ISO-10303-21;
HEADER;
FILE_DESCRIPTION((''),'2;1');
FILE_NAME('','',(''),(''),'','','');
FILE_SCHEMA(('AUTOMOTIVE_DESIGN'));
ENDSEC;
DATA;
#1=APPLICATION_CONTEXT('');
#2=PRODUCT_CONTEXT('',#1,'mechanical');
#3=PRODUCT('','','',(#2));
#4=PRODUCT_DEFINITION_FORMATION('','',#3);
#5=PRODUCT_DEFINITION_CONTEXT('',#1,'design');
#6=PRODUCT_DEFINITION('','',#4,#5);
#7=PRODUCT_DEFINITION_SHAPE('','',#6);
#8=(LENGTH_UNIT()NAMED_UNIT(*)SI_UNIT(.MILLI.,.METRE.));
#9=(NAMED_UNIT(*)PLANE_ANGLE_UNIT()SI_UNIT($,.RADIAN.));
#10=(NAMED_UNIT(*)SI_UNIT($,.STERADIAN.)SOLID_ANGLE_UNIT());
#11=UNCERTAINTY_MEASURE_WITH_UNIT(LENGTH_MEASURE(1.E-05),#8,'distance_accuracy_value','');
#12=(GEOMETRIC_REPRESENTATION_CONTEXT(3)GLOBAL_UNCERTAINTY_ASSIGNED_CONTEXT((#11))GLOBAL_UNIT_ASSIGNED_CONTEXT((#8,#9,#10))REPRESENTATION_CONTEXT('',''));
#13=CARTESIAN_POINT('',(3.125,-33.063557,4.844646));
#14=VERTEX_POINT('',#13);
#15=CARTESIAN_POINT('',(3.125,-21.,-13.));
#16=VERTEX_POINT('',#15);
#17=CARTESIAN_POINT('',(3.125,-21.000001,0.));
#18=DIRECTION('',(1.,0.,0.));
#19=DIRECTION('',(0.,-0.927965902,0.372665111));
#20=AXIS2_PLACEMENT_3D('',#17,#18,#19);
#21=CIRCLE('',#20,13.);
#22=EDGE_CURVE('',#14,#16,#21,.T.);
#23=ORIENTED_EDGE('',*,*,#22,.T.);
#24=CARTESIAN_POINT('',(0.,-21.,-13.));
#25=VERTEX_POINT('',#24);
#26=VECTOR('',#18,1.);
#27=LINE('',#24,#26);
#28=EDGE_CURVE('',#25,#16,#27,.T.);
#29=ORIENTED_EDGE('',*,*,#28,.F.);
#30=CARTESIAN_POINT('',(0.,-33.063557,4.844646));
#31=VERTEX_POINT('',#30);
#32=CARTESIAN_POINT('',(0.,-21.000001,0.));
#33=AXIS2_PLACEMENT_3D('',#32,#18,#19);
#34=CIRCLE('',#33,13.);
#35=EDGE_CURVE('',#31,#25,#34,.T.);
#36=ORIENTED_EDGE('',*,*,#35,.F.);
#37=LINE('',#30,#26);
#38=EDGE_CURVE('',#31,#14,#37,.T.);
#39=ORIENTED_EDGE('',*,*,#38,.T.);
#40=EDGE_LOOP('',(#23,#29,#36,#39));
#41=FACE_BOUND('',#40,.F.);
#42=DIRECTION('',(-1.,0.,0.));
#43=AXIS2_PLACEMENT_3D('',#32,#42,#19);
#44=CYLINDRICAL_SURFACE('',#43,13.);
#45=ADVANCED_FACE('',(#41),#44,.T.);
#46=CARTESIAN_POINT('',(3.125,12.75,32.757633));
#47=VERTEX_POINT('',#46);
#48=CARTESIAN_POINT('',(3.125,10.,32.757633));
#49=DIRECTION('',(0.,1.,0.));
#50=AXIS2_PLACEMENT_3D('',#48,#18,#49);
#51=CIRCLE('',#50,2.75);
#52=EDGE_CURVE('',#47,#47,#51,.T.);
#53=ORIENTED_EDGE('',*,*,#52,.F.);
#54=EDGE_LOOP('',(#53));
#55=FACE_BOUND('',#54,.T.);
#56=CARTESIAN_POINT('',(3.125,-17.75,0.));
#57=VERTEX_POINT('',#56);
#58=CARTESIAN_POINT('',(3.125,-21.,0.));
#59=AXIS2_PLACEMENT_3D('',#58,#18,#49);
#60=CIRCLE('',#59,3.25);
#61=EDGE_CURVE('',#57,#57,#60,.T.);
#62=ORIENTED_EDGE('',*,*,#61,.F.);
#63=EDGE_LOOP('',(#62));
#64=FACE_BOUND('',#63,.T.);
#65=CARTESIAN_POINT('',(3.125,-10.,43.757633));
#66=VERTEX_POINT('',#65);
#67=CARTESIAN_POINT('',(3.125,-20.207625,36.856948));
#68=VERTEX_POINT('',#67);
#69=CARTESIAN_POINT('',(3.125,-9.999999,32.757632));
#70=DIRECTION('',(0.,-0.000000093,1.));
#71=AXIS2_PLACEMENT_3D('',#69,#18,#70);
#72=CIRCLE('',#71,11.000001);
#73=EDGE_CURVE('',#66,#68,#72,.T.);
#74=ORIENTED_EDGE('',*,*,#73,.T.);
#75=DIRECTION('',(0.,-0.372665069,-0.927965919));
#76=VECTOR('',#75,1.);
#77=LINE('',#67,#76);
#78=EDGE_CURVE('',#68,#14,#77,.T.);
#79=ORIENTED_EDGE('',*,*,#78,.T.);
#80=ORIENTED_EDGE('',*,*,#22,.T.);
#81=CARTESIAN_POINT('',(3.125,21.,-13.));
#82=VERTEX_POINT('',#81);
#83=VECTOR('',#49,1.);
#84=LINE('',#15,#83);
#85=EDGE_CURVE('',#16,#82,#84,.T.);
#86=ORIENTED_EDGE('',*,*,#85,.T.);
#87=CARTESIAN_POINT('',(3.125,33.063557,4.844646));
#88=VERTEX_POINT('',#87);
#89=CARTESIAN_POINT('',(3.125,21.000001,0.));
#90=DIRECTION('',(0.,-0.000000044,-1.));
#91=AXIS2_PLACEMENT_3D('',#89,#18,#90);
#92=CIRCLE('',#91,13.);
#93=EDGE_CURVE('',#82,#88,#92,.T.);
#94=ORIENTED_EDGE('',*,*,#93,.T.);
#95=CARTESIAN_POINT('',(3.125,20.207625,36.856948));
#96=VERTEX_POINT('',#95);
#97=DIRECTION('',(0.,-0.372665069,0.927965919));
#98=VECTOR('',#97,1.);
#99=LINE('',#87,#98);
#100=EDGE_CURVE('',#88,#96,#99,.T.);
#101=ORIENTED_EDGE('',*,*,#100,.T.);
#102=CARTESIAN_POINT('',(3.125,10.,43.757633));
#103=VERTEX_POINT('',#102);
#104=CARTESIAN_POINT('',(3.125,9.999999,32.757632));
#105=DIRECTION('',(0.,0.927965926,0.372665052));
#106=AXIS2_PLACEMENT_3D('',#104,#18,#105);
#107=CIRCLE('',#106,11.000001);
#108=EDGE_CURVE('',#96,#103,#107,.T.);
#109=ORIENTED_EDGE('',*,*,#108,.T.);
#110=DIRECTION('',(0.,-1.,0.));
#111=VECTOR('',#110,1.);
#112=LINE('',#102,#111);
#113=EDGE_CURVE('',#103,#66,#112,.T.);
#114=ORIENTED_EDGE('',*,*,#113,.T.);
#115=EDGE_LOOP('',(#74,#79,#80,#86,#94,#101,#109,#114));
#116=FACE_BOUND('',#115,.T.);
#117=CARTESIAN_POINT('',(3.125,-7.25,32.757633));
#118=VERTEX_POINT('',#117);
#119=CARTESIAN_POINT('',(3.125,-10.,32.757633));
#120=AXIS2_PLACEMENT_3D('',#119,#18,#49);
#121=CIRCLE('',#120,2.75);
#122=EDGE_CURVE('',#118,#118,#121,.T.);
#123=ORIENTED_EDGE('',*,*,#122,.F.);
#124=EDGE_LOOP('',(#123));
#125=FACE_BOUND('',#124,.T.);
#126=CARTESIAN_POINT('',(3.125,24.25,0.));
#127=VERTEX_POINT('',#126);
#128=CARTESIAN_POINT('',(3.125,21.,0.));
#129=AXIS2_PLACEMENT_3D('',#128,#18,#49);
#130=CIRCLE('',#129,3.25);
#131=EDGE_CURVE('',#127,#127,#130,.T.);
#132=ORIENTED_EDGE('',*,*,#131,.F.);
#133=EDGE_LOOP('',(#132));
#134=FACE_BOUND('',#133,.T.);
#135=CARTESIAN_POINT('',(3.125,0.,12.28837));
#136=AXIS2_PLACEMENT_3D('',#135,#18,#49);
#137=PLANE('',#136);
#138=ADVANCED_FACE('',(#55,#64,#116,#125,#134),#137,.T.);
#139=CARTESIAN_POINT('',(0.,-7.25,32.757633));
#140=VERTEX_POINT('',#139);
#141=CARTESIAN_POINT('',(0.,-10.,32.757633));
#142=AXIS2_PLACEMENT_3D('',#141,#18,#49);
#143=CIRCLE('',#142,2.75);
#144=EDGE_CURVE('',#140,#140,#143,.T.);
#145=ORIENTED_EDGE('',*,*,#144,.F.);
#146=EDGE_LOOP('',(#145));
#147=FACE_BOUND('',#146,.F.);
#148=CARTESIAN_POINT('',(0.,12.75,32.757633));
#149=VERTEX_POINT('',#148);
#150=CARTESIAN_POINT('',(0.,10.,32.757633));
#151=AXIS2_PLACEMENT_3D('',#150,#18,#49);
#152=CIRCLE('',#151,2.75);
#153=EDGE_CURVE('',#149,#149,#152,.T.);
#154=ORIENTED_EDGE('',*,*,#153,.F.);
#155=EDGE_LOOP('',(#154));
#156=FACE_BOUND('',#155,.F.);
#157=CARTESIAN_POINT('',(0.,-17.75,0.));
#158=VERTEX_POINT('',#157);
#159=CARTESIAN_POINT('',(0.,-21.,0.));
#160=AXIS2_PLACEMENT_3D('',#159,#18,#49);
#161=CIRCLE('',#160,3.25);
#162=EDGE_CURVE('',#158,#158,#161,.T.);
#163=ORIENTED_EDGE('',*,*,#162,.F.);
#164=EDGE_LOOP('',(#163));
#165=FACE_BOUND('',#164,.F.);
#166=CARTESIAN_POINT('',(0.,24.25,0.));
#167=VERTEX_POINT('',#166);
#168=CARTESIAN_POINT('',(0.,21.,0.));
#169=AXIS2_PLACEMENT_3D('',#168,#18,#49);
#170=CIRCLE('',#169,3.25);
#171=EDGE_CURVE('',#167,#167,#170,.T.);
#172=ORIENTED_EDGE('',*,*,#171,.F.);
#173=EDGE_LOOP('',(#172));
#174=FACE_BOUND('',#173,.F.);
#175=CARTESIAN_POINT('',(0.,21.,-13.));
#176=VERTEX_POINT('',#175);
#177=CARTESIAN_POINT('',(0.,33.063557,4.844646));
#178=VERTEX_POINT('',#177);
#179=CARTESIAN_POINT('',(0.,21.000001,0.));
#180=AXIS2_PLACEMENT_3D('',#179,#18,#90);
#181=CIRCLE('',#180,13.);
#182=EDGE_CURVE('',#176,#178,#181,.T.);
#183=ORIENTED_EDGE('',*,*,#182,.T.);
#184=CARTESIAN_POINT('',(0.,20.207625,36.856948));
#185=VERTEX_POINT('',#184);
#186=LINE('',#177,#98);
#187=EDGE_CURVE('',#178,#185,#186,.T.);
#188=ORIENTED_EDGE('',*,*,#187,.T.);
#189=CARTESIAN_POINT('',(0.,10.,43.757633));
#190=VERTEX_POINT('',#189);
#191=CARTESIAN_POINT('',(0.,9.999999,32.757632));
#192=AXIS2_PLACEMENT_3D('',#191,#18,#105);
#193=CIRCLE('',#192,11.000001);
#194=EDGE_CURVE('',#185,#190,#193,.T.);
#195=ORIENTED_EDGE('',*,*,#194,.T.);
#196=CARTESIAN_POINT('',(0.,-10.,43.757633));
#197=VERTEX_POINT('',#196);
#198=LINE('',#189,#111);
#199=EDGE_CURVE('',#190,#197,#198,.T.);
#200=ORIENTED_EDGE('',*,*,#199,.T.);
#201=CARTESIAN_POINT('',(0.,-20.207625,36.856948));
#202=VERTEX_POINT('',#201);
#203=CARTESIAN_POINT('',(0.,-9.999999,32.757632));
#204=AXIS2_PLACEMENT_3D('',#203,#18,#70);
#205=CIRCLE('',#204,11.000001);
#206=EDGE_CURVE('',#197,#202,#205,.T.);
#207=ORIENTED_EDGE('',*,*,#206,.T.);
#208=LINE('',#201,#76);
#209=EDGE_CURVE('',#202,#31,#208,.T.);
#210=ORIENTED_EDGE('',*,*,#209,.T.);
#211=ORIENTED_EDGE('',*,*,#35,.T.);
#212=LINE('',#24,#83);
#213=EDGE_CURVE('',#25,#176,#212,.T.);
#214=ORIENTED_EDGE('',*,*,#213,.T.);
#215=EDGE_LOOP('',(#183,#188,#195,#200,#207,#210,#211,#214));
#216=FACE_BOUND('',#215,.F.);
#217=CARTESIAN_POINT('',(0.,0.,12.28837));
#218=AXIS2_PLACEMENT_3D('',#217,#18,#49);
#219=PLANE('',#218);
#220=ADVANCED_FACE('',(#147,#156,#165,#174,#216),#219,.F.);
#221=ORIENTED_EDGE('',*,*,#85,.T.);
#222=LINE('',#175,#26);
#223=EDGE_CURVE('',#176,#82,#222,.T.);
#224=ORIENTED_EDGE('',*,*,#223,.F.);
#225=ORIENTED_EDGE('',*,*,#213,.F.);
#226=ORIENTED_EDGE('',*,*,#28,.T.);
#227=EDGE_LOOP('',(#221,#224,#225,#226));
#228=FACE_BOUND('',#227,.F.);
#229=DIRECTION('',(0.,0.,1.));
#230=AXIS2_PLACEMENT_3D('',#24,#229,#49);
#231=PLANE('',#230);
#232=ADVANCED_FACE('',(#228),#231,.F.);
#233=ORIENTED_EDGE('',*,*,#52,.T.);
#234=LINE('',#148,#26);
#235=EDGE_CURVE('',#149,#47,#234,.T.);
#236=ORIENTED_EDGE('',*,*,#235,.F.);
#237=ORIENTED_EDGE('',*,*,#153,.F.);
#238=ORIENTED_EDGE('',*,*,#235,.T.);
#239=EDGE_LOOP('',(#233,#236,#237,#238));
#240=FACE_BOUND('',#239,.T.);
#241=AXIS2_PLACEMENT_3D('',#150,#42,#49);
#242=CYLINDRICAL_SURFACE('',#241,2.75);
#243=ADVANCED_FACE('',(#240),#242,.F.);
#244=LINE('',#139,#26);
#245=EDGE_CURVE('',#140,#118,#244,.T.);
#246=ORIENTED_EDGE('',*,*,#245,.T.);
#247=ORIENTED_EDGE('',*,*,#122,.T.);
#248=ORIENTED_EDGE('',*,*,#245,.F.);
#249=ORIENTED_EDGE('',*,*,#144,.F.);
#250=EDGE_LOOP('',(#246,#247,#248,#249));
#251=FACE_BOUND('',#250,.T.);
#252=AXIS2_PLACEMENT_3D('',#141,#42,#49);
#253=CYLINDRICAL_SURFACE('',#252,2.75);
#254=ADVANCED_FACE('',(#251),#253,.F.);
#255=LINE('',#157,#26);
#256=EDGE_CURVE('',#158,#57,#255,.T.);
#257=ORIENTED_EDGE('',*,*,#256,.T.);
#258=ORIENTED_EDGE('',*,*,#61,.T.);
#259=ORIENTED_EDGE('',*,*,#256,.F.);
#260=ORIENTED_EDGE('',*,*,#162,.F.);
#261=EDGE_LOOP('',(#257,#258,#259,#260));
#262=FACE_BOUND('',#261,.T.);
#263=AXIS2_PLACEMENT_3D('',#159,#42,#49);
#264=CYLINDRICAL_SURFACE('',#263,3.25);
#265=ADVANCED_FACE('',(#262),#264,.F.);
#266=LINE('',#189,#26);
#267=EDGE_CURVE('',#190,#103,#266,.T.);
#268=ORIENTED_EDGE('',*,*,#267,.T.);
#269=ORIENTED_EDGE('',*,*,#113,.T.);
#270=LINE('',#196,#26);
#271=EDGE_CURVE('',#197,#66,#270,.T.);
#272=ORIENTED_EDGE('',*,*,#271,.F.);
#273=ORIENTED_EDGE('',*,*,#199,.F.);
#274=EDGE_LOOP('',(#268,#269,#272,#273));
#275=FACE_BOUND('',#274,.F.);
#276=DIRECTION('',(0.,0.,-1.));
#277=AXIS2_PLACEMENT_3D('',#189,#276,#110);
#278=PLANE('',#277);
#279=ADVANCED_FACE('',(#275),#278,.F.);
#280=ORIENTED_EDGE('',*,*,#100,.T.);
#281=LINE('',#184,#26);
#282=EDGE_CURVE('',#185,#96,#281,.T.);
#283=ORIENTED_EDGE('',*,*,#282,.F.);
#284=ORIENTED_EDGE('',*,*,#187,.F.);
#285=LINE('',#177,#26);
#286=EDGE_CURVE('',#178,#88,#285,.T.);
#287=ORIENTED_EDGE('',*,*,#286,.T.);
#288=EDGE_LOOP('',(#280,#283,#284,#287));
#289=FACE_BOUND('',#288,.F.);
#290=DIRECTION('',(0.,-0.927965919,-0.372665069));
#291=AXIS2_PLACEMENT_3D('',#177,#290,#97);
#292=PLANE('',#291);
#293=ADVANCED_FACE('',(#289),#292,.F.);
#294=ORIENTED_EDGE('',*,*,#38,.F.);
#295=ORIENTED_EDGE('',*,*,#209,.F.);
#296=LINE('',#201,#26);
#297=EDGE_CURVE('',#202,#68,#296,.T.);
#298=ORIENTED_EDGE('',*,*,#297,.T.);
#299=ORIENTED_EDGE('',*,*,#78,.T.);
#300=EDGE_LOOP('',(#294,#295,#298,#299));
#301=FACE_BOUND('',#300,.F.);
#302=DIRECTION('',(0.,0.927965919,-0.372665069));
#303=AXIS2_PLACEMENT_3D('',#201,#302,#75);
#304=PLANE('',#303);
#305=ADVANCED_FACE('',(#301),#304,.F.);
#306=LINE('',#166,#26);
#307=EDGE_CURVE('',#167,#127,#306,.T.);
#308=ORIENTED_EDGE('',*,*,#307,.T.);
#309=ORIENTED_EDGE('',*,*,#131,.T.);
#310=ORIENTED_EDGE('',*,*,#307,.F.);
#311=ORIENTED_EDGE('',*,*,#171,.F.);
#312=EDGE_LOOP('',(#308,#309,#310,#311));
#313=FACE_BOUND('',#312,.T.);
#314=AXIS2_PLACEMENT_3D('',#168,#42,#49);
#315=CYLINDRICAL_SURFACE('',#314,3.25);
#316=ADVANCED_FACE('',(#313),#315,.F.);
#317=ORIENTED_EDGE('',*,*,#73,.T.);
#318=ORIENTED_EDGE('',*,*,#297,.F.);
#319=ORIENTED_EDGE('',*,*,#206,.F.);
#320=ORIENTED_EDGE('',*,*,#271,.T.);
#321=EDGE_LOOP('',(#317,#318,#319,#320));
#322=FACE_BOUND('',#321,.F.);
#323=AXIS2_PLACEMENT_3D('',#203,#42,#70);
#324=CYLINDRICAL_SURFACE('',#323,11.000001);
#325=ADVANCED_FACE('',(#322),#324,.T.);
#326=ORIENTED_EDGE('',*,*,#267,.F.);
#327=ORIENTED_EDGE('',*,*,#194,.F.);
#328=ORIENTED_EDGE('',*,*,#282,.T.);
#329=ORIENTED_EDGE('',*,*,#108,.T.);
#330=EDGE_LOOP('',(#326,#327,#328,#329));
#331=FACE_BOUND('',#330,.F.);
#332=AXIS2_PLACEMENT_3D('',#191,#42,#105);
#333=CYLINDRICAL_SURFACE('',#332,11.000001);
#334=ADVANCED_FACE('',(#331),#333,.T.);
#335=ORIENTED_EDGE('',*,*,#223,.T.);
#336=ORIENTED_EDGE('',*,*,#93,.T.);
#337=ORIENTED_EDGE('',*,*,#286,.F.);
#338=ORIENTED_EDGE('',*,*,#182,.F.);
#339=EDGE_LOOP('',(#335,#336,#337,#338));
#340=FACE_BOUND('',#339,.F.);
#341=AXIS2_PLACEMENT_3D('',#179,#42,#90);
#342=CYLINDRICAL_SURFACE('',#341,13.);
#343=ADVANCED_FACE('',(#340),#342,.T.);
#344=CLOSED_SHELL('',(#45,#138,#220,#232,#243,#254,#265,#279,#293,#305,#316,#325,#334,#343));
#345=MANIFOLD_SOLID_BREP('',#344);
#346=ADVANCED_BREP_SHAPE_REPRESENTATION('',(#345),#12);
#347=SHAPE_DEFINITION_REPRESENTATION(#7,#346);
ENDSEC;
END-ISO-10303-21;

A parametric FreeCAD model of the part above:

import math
import FreeCAD as App
import Part
import Sketcher

doc = App.newDocument("Part")
body = doc.addObject("PartDesign::Body", "Body")

sketch1 = body.newObject("Sketcher::SketchObject", "Sketch")
sketch1.AttachmentSupport = (doc.getObject("YZ_Plane"), [""])
sketch1.MapMode = "FlatFace"
sketch1.addGeometry([
    Part.LineSegment(App.Vector(10, 43.8, 0), App.Vector(-10, 43.8, 0)),
    Part.ArcOfCircle(Part.Circle(App.Vector(-10, 32.8, 0), App.Vector(0, 0, 1), 11), math.radians(90), math.radians(158)),
    Part.LineSegment(App.Vector(-20.2, 36.9, 0), App.Vector(-33.1, 4.8, 0)),
    Part.ArcOfCircle(Part.Circle(App.Vector(-21, 0, 0), App.Vector(0, 0, 1), 13), math.radians(158), math.radians(270)),
    Part.LineSegment(App.Vector(-21, -13, 0), App.Vector(21, -13, 0)),
    Part.ArcOfCircle(Part.Circle(App.Vector(21, 0, 0), App.Vector(0, 0, 1), 13), math.radians(-90), math.radians(22)),
    Part.LineSegment(App.Vector(33.1, 4.8, 0), App.Vector(20.2, 36.9, 0)),
    Part.ArcOfCircle(Part.Circle(App.Vector(10, 32.8, 0), App.Vector(0, 0, 1), 11), math.radians(22), math.radians(90)),
    Part.Circle(App.Vector(-21, 0, 0), App.Vector(0, 0, 1), 3.2),
    Part.Circle(App.Vector(21, 0, 0), App.Vector(0, 0, 1), 3.2),
    Part.Circle(App.Vector(-10, 32.8, 0), App.Vector(0, 0, 1), 2.8),
    Part.Circle(App.Vector(10, 32.8, 0), App.Vector(0, 0, 1), 2.8),
], False)
sketch1.addConstraint([
    Sketcher.Constraint("Tangent", 0, 2, 1, 1),
    Sketcher.Constraint("Tangent", 1, 2, 2, 1),
    Sketcher.Constraint("Tangent", 2, 2, 3, 1),
    Sketcher.Constraint("Tangent", 3, 2, 4, 1),
    Sketcher.Constraint("Tangent", 4, 2, 5, 1),
    Sketcher.Constraint("Tangent", 5, 2, 6, 1),
    Sketcher.Constraint("Tangent", 6, 2, 7, 1),
    Sketcher.Constraint("Tangent", 7, 2, 0, 1),
    Sketcher.Constraint("Horizontal", 0),
    Sketcher.Constraint("Horizontal", 4),
    Sketcher.Constraint("Coincident", 8, 3, 3, 3),
    Sketcher.Constraint("Coincident", 9, 3, 5, 3),
    Sketcher.Constraint("Coincident", 10, 3, 1, 3),
    Sketcher.Constraint("Coincident", 11, 3, 7, 3),
    Sketcher.Constraint("Equal", 3, 5),
    Sketcher.Constraint("Equal", 1, 7),
    Sketcher.Constraint("Equal", 8, 9),
    Sketcher.Constraint("Equal", 10, 11),
    Sketcher.Constraint("Symmetric", 3, 3, 5, 3, -1, 1),
    Sketcher.Constraint("Horizontal", 2, 2, 5, 2),
    Sketcher.Constraint("Radius", 1, 11.000001),
    Sketcher.Constraint("Radius", 3, 13.0),
    Sketcher.Constraint("Diameter", 8, 6.5),
    Sketcher.Constraint("Diameter", 10, 5.5),
    Sketcher.Constraint("DistanceX", 0, 2, 0, 1, 20.0),
    Sketcher.Constraint("DistanceX", 4, 1, 4, 2, 42.0),
    Sketcher.Constraint("DistanceY", 2, 2, 1, 2, 32.012302),
])
pad1 = body.newObject("PartDesign::Pad", "Pad")
pad1.Profile = sketch1
pad1.Length = 3.125

doc.recompute()
